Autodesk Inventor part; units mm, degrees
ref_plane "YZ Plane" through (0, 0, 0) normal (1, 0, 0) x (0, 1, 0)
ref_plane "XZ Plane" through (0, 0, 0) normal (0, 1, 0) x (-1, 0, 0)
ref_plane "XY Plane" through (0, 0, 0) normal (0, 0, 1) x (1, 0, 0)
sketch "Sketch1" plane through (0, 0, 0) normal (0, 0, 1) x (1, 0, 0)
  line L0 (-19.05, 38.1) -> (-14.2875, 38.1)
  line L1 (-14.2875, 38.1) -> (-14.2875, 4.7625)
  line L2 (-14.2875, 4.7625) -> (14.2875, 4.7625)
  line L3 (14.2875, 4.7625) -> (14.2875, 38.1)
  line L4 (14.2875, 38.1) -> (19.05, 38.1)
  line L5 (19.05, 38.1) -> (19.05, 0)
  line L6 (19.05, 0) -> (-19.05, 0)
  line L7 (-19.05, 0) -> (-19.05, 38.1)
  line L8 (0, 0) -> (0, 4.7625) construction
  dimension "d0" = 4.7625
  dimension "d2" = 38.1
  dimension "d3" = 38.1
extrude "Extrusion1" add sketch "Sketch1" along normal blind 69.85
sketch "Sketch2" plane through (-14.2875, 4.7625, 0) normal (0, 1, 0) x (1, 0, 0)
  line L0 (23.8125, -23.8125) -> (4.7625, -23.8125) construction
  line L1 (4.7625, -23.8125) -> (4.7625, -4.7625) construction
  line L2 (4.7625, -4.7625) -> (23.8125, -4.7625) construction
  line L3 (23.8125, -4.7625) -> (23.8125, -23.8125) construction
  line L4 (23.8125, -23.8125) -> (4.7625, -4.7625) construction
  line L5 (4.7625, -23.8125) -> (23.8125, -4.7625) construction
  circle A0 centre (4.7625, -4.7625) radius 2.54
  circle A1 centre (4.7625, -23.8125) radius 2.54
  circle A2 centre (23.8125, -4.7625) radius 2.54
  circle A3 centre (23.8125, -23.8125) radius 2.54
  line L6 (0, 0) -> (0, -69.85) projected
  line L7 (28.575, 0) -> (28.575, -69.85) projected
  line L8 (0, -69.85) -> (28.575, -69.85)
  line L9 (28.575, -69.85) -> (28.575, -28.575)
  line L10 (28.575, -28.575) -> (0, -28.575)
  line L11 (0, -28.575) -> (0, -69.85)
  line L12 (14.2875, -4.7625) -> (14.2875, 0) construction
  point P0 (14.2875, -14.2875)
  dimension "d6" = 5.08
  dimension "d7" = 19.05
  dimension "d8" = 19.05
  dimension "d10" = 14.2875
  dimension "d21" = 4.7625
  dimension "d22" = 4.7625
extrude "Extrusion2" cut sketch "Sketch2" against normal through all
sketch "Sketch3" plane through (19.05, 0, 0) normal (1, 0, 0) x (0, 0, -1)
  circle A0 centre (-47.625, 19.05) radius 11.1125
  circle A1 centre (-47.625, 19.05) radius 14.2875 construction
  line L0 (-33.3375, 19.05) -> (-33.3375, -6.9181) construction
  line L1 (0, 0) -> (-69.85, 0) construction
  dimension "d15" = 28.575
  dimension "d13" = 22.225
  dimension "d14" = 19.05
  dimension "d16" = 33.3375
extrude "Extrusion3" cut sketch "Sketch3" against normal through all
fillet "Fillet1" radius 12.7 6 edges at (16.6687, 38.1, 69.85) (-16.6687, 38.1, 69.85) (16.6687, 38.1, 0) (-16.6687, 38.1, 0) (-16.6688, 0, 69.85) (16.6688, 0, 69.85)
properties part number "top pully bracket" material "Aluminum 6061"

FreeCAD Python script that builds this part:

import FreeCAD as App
import Part
import Sketcher

V = App.Vector
Q = App.Units.Quantity


def edges_at(feature, points):
    """Names of the edges that pass closest to the given points."""
    edges = feature.Shape.Edges
    near = lambda p: min(range(len(edges)), key=lambda i: edges[i].distToShape(Part.Vertex(*p))[0])
    return sorted({f"Edge{near(p) + 1}" for p in points})

doc = App.newDocument("Part")
body = doc.addObject("PartDesign::Body", "Body")

sketch1 = body.newObject("Sketcher::SketchObject", "Sketch")
sketch1.AttachmentSupport = (doc.getObject("XY_Plane"), [""])
sketch1.MapMode = "FlatFace"
sketch1.addGeometry([
    Part.LineSegment(V(-14.3, 38.1, 0), V(-19.1, 38.1, 0)),
    Part.LineSegment(V(-19.1, 38.1, 0), V(-19.1, 0, 0)),
    Part.LineSegment(V(-19.1, 0, 0), V(19.1, 0, 0)),
    Part.LineSegment(V(19.1, 0, 0), V(19.1, 38.1, 0)),
    Part.LineSegment(V(19.1, 38.1, 0), V(14.3, 38.1, 0)),
    Part.LineSegment(V(14.3, 38.1, 0), V(14.3, 4.8, 0)),
    Part.LineSegment(V(14.3, 4.8, 0), V(-14.3, 4.8, 0)),
    Part.LineSegment(V(-14.3, 4.8, 0), V(-14.3, 38.1, 0)),
], False)
sketch1.addConstraint([
    Sketcher.Constraint("Coincident", 0, 2, 1, 1),
    Sketcher.Constraint("Coincident", 1, 2, 2, 1),
    Sketcher.Constraint("Coincident", 2, 2, 3, 1),
    Sketcher.Constraint("Coincident", 3, 2, 4, 1),
    Sketcher.Constraint("Coincident", 4, 2, 5, 1),
    Sketcher.Constraint("Coincident", 5, 2, 6, 1),
    Sketcher.Constraint("Coincident", 6, 2, 7, 1),
    Sketcher.Constraint("Coincident", 7, 2, 0, 1),
    Sketcher.Constraint("Horizontal", 0),
    Sketcher.Constraint("Vertical", 1),
    Sketcher.Constraint("Horizontal", 2),
    Sketcher.Constraint("Vertical", 3),
    Sketcher.Constraint("Horizontal", 4),
    Sketcher.Constraint("Vertical", 5),
    Sketcher.Constraint("Horizontal", 6),
    Sketcher.Constraint("Vertical", 7),
    Sketcher.Constraint("Symmetric", 1, 2, 2, 2, -1, 1),
    Sketcher.Constraint("Symmetric", 4, 2, 7, 2, -2),
    Sketcher.Constraint("Equal", 2, 1),
    Sketcher.Constraint("DistanceX", 2, 1, 2, 2, Q("1.5 in")),
    Sketcher.Constraint("DistanceX", 0, 2, 0, 1, Q("0.1875 in")),
    Sketcher.Constraint("DistanceY", -1, 1, 5, 2, Q("0.1875 in")),
])
pad1 = body.newObject("PartDesign::Pad", "Pad")
pad1.Profile = sketch1
pad1.Length = Q("2.75 in")

sketch2 = body.newObject("Sketcher::SketchObject", "Sketch001")
sketch2.AttachmentSupport = (doc.getObject("XZ_Plane"), [""])
sketch2.MapMode = "FlatFace"
sketch2.AttachmentOffset = App.Placement(V(0, 0, -0.1875 * 25.4), App.Rotation())
sketch2.addGeometry([
    Part.Circle(V(-9.5, 4.8, 0), V(0, 0, 1), 2.5),
    Part.Circle(V(-9.5, 23.8, 0), V(0, 0, 1), 2.5),
    Part.Circle(V(9.5, 4.8, 0), V(0, 0, 1), 2.5),
    Part.Circle(V(9.5, 23.8, 0), V(0, 0, 1), 2.5),
    Part.LineSegment(V(14.3, 28.6, 0), V(-14.3, 28.6, 0)),
    Part.LineSegment(V(-14.3, 28.6, 0), V(-14.3, 69.8, 0)),
    Part.LineSegment(V(-14.3, 69.8, 0), V(14.3, 69.8, 0)),
    Part.LineSegment(V(14.3, 69.8, 0), V(14.3, 28.6, 0)),
], False)
sketch2.addConstraint([
    Sketcher.Constraint("Coincident", 4, 2, 5, 1),
    Sketcher.Constraint("Coincident", 5, 2, 6, 1),
    Sketcher.Constraint("Coincident", 6, 2, 7, 1),
    Sketcher.Constraint("Coincident", 7, 2, 4, 1),
    Sketcher.Constraint("Horizontal", 4),
    Sketcher.Constraint("Vertical", 5),
    Sketcher.Constraint("Horizontal", 6),
    Sketcher.Constraint("Vertical", 7),
    Sketcher.Constraint("Equal", 0, 1),
    Sketcher.Constraint("Equal", 1, 2),
    Sketcher.Constraint("Equal", 2, 3),
    Sketcher.Constraint("Symmetric", 0, 3, 2, 3, -2),
    Sketcher.Constraint("Symmetric", 1, 3, 3, 3, -2),
    Sketcher.Constraint("Vertical", 0, 3, 1, 3),
    Sketcher.Constraint("Diameter", 0, Q("0.2 in")),
    Sketcher.Constraint("DistanceY", 0, 3, 1, 3, Q("0.75 in")),
    Sketcher.Constraint("DistanceX", 0, 3, 2, 3, Q("0.75 in")),
    Sketcher.Constraint("DistanceY", -1, 1, 0, 3, Q("0.1875 in")),
    Sketcher.Constraint("DistanceX", 4, 2, -1, 1, Q("0.5625 in")),
    Sketcher.Constraint("DistanceX", -1, 1, 6, 2, Q("0.5625 in")),
    Sketcher.Constraint("DistanceY", 1, 3, 4, 2, Q("0.1875 in")),
    Sketcher.Constraint("DistanceY", 5, 1, 5, 2, Q("1.625 in")),
])
pocket1 = body.newObject("PartDesign::Pocket", "Pocket")
pocket1.Profile = sketch2
pocket1.Type = "ThroughAll"
pocket1.Reversed = True

sketch3 = body.newObject("Sketcher::SketchObject", "Sketch002")
sketch3.AttachmentSupport = (doc.getObject("YZ_Plane"), [""])
sketch3.MapMode = "FlatFace"
sketch3.AttachmentOffset = App.Placement(V(0, 0, 0.75 * 25.4), App.Rotation())
sketch3.addGeometry(Part.Circle(V(19, 48, 0), V(0, 0, 1), 11), False)
sketch3.addConstraint([
    Sketcher.Constraint("Diameter", 0, Q("0.875 in")),
    Sketcher.Constraint("DistanceX", -1, 1, 0, 3, Q("0.75 in")),
    Sketcher.Constraint("DistanceY", -1, 1, 0, 3, Q("1.875 in")),
])
pocket2 = body.newObject("PartDesign::Pocket", "Pocket001")
pocket2.Profile = sketch3
pocket2.Type = "ThroughAll"
doc.recompute()

fillet = body.newObject("PartDesign::Fillet", "Fillet")
fillet.Base = (pocket2, edges_at(pocket2, [
    (16.669, 38.1, 69.85),
    (-16.669, 38.1, 69.85),
    (16.669, 38.1, 0),
    (-16.669, 38.1, 0),
    (-16.669, 0, 69.85),
    (16.669, 0, 69.85),
]))
fillet.Radius = Q("0.5 in")

doc.recompute()
